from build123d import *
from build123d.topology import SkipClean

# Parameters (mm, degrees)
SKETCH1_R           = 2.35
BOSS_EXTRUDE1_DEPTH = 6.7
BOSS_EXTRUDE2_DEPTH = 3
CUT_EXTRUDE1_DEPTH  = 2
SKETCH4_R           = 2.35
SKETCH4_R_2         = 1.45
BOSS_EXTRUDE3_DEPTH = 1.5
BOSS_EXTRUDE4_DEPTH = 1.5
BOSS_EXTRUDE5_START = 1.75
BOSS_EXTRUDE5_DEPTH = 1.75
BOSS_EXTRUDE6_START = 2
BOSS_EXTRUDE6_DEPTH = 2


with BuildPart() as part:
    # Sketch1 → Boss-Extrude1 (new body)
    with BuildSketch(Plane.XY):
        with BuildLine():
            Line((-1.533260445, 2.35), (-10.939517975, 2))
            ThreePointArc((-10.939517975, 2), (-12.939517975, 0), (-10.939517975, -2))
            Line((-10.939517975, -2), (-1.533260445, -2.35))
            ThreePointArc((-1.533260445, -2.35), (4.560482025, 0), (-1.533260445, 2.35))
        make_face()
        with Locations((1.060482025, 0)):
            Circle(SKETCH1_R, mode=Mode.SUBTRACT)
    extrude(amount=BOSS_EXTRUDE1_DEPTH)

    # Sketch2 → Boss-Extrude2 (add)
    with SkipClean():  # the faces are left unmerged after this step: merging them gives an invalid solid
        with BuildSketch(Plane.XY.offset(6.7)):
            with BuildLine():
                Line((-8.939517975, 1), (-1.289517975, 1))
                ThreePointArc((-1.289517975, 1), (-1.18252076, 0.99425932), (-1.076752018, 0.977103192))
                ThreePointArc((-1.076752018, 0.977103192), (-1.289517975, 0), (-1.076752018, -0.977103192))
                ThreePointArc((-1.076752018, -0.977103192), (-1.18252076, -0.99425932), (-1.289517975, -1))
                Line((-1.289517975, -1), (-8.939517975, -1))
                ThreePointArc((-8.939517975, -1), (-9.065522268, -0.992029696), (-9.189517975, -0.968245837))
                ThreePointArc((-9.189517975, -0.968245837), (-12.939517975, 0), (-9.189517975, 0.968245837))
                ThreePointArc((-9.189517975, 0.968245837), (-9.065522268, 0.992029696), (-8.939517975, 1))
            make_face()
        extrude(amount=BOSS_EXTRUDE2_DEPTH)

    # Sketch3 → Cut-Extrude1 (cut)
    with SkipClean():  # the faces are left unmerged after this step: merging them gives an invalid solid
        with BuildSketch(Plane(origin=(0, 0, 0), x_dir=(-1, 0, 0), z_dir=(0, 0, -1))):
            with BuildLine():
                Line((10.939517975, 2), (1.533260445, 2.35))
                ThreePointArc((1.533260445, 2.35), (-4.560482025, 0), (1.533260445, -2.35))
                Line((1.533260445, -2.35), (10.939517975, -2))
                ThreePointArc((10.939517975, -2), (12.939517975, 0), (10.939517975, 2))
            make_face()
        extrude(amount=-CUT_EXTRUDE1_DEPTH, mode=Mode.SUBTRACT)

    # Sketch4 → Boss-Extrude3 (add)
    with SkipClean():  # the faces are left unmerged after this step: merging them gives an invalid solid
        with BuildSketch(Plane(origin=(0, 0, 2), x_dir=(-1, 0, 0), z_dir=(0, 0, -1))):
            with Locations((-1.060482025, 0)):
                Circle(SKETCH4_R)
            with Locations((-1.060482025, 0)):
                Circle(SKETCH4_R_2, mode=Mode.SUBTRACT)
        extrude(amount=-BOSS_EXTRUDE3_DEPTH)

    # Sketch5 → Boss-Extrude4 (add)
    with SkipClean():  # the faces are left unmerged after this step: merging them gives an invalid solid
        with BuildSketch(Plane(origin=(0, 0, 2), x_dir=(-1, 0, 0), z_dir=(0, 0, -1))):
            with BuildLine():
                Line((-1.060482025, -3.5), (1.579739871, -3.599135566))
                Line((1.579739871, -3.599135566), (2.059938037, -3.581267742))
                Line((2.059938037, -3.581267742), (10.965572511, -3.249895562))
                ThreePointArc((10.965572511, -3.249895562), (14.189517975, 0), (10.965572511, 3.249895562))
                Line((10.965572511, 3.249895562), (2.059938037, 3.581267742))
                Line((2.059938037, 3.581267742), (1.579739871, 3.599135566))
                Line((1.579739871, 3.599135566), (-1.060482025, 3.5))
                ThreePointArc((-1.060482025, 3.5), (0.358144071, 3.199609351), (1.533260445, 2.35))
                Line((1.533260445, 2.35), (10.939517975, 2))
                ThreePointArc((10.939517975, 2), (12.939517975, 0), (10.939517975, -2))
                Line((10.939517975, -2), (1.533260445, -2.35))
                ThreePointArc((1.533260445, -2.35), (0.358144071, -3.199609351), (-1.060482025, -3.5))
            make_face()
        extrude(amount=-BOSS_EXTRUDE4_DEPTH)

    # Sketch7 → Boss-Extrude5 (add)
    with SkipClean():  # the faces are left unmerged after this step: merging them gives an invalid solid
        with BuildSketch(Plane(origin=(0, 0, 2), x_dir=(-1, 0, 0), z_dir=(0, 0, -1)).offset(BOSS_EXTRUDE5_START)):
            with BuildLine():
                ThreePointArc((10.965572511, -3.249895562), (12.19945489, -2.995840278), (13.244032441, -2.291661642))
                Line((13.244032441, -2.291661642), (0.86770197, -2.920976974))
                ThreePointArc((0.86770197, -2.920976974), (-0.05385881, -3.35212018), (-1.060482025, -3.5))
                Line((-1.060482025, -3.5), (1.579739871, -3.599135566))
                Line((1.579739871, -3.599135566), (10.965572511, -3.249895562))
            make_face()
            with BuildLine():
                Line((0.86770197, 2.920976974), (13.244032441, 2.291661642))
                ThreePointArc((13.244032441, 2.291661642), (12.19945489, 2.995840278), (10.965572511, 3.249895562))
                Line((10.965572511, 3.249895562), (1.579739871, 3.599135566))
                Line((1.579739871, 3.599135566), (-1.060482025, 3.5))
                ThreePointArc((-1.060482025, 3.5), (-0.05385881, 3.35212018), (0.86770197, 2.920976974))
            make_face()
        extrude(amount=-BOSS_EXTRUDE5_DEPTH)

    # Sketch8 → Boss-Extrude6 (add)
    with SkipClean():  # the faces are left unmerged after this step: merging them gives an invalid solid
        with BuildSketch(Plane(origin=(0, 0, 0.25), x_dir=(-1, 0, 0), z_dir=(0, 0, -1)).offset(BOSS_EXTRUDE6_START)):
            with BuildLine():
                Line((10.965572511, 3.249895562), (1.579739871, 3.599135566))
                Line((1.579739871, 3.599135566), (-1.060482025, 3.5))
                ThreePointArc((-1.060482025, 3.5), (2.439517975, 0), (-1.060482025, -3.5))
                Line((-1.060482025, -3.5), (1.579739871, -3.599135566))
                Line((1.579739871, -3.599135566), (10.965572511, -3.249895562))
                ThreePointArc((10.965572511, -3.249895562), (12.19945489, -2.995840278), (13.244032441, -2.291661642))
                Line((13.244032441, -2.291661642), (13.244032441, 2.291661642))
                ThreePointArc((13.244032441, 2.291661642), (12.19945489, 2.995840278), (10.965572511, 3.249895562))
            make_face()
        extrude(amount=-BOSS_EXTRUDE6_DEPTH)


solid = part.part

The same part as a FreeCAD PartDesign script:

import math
import FreeCAD as App
import Part
import Sketcher
Q = App.Units.Quantity

doc = App.newDocument("Part")
params = doc.addObject("Spreadsheet::Sheet", "Params")
for row, (alias, value) in enumerate([
    ("sketch1_radius", "2 mm"),
    ("sketch1_diameter", "4.7 mm"),
    ("sketch1_radius2", "3.5 mm"),
    ("pad1_length", "6.7 mm"),
    ("sketch2_radius", "1 mm"),
    ("sketch2_radius2", "2 mm"),
    ("sketch2_radius3", "2.35 mm"),
    ("sketch2_width", "7.65 mm"),
    ("pad2_length", "3 mm"),
    ("sketch3_radius", "2 mm"),
    ("sketch3_radius2", "3.5 mm"),
    ("pocket1_length", "2 mm"),
    ("sketch4_diameter", "4.7 mm"),
    ("sketch4_diameter2", "2.9 mm"),
    ("pad3_length", "1.5 mm"),
    ("sketch5_radius", "2 mm"),
    ("sketch5_radius2", "3.5 mm"),
    ("sketch5_radius3", "3.25 mm"),
    ("pad4_length", "1.5 mm"),
    ("sketch6_radius", "3.5 mm"),
    ("sketch6_radius2", "3.25 mm"),
    ("pad5_length", "1.75 mm"),
    ("sketch7_radius", "3.5 mm"),
    ("sketch7_radius2", "3.25 mm"),
    ("pad6_length", "2 mm"),
], start=1):
    params.set(f"A{row}", alias)
    params.set(f"B{row}", "=" + value)
    params.setAlias(f"B{row}", alias)

body = doc.addObject("PartDesign::Body", "Body")

sketch1 = doc.addObject("Sketcher::SketchObject", "Sketch")
body.addObject(sketch1)
sketch1.AttachmentSupport = (doc.XY_Plane, [""])
sketch1.MapMode = "FlatFace"
sketch1.addGeometry([
    Part.LineSegment(App.Vector(-1.5, 2.4, 0), App.Vector(-10.9, 2, 0)),
    Part.ArcOfCircle(Part.Circle(App.Vector(-10.9, 0, 0), App.Vector(0, 0, 1), 2), math.radians(90), math.radians(270)),
    Part.LineSegment(App.Vector(-10.9, -2, 0), App.Vector(-1.5, -2.4, 0)),
    Part.ArcOfCircle(Part.Circle(App.Vector(1.1, 0, 0), App.Vector(0, 0, 1), 3.5), math.radians(-138), math.radians(138)),
    Part.Circle(App.Vector(1.1, 0, 0), App.Vector(0, 0, 1), 2.4),
], False)
sketch1.addConstraint([
    Sketcher.Constraint("Coincident", 0, 2, 1, 1),
    Sketcher.Constraint("Coincident", 1, 2, 2, 1),
    Sketcher.Constraint("Coincident", 2, 2, 3, 1),
    Sketcher.Constraint("Coincident", 3, 2, 0, 1),
    Sketcher.Constraint("Coincident", 4, 3, 3, 3),
    Sketcher.Constraint("Symmetric", 0, 2, 1, 2, -1),
    Sketcher.Constraint("Symmetric", 2, 2, 3, 2, -1),
    Sketcher.Constraint("Vertical", 1, 3, 0, 2),
    Sketcher.Constraint("Radius", 1, Q("2 mm")),
    Sketcher.Constraint("Diameter", 4, Q("4.7 mm")),
    Sketcher.Constraint("Radius", 3, Q("3.5 mm")),
    Sketcher.Constraint("DistanceX", 1, 3, 3, 3, Q("12 mm")),
    Sketcher.Constraint("DistanceY", 2, 2, 3, 2, Q("4.7 mm")),
    Sketcher.Constraint("DistanceX", 2, 2, -1, 1, Q("1.53326 mm")),
])
sketch1.setExpression("Constraints[8]", "Params.sketch1_radius")
sketch1.setExpression("Constraints[9]", "Params.sketch1_diameter")
sketch1.setExpression("Constraints[10]", "Params.sketch1_radius2")
pad1 = doc.addObject("PartDesign::Pad", "Pad")
body.addObject(pad1)
pad1.Profile = sketch1
pad1.setExpression("Length", "Params.pad1_length")

sketch2 = doc.addObject("Sketcher::SketchObject", "Sketch001")
body.addObject(sketch2)
sketch2.AttachmentSupport = (doc.XY_Plane, [""])
sketch2.MapMode = "FlatFace"
sketch2.AttachmentOffset = App.Placement(App.Vector(0, 0, 6.7), App.Rotation())
sketch2.addGeometry([
    Part.LineSegment(App.Vector(-1.29, 1, 0), App.Vector(-8.94, 1, 0)),
    Part.ArcOfCircle(Part.Circle(App.Vector(-8.94, 0, 0), App.Vector(0, 0, 1), 1), math.radians(90), math.radians(104.48)),
    Part.ArcOfCircle(Part.Circle(App.Vector(-10.94, 0, 0), App.Vector(0, 0, 1), 2), math.radians(29), math.radians(331)),
    Part.ArcOfCircle(Part.Circle(App.Vector(-8.94, 0, 0), App.Vector(0, 0, 1), 1), math.radians(-104.48), math.radians(-90)),
    Part.LineSegment(App.Vector(-8.94, -1, 0), App.Vector(-1.29, -1, 0)),
    Part.ArcOfCircle(Part.Circle(App.Vector(-1.29, 0, 0), App.Vector(0, 0, 1), 1), math.radians(-90), math.radians(-77.72)),
    Part.ArcOfCircle(Part.Circle(App.Vector(1.06, 0, 0), App.Vector(0, 0, 1), 2.35), math.radians(155), math.radians(205)),
    Part.ArcOfCircle(Part.Circle(App.Vector(-1.29, 0, 0), App.Vector(0, 0, 1), 1), math.radians(77.72), math.radians(90)),
], False)
sketch2.addConstraint([
    Sketcher.Constraint("Tangent", 0, 2, 1, 1),
    Sketcher.Constraint("Coincident", 1, 2, 2, 1),
    Sketcher.Constraint("Coincident", 2, 2, 3, 1),
    Sketcher.Constraint("Tangent", 3, 2, 4, 1),
    Sketcher.Constraint("Tangent", 4, 2, 5, 1),
    Sketcher.Constraint("Coincident", 5, 2, 6, 2),
    Sketcher.Constraint("Coincident", 6, 1, 7, 1),
    Sketcher.Constraint("Tangent", 7, 2, 0, 1),
    Sketcher.Constraint("Horizontal", 0),
    Sketcher.Constraint("Horizontal", 4),
    Sketcher.Constraint("Coincident", 3, 3, 1, 3),
    Sketcher.Constraint("Coincident", 7, 3, 5, 3),
    Sketcher.Constraint("Equal", 1, 3),
    Sketcher.Constraint("Equal", 3, 5),
    Sketcher.Constraint("Symmetric", 1, 2, 2, 2, -1),
    Sketcher.Constraint("PointOnObject", 6, 3, -1),
    Sketcher.Constraint("Radius", 1, Q("1 mm")),
    Sketcher.Constraint("Radius", 2, Q("2 mm")),
    Sketcher.Constraint("Radius", 6, Q("2.35 mm")),
    Sketcher.Constraint("DistanceX", 2, 3, 1, 3, Q("2 mm")),
    Sketcher.Constraint("DistanceX", 1, 3, 6, 3, Q("10 mm")),
    Sketcher.Constraint("DistanceX", 0, 2, 0, 1, Q("7.65 mm")),
    Sketcher.Constraint("DistanceX", 1, 3, -1, 1, Q("8.939518 mm")),
])
sketch2.setExpression("Constraints[16]", "Params.sketch2_radius")
sketch2.setExpression("Constraints[17]", "Params.sketch2_radius2")
sketch2.setExpression("Constraints[18]", "Params.sketch2_radius3")
sketch2.setExpression("Constraints[21]", "Params.sketch2_width")
pad2 = doc.addObject("PartDesign::Pad", "Pad001")
body.addObject(pad2)
pad2.Profile = sketch2
pad2.setExpression("Length", "Params.pad2_length")

sketch3 = doc.addObject("Sketcher::SketchObject", "Sketch002")
body.addObject(sketch3)
sketch3.AttachmentSupport = (doc.XY_Plane, [""])
sketch3.MapMode = "FlatFace"
sketch3.addGeometry([
    Part.LineSegment(App.Vector(-10.9, 2, 0), App.Vector(-1.5, 2.4, 0)),
    Part.ArcOfCircle(Part.Circle(App.Vector(1.1, 0, 0), App.Vector(0, 0, 1), 3.5), math.radians(-138), math.radians(138)),
    Part.LineSegment(App.Vector(-1.5, -2.4, 0), App.Vector(-10.9, -2, 0)),
    Part.ArcOfCircle(Part.Circle(App.Vector(-10.9, 0, 0), App.Vector(0, 0, 1), 2), math.radians(90), math.radians(270)),
], False)
sketch3.addConstraint([
    Sketcher.Constraint("Coincident", 0, 2, 1, 2),
    Sketcher.Constraint("Coincident", 1, 1, 2, 1),
    Sketcher.Constraint("Coincident", 2, 2, 3, 2),
    Sketcher.Constraint("Coincident", 3, 1, 0, 1),
    Sketcher.Constraint("Symmetric", 0, 2, 1, 1, -1),
    Sketcher.Constraint("Symmetric", 2, 2, 3, 1, -1),
    Sketcher.Constraint("Vertical", 3, 3, 2, 2),
    Sketcher.Constraint("Radius", 3, Q("2 mm")),
    Sketcher.Constraint("Radius", 1, Q("3.5 mm")),
    Sketcher.Constraint("DistanceX", 3, 3, 1, 3, Q("12 mm")),
    Sketcher.Constraint("DistanceY", 1, 1, 0, 2, Q("4.7 mm")),
    Sketcher.Constraint("DistanceX", 0, 2, -1, 1, Q("1.53326 mm")),
])
sketch3.setExpression("Constraints[7]", "Params.sketch3_radius")
sketch3.setExpression("Constraints[8]", "Params.sketch3_radius2")
pocket1 = doc.addObject("PartDesign::Pocket", "Pocket")
body.addObject(pocket1)
pocket1.Profile = sketch3
pocket1.setExpression("Length", "Params.pocket1_length")
pocket1.Reversed = True

sketch4 = doc.addObject("Sketcher::SketchObject", "Sketch003")
body.addObject(sketch4)
sketch4.AttachmentSupport = (doc.XY_Plane, [""])
sketch4.MapMode = "FlatFace"
sketch4.AttachmentOffset = App.Placement(App.Vector(0, 0, 2), App.Rotation())
sketch4.addGeometry([
    Part.Circle(App.Vector(1.1, 0, 0), App.Vector(0, 0, 1), 2.4),
    Part.Circle(App.Vector(1.1, 0, 0), App.Vector(0, 0, 1), 1.4),
], False)
sketch4.addConstraint([
    Sketcher.Constraint("Coincident", 1, 3, 0, 3),
    Sketcher.Constraint("PointOnObject", 0, 3, -1),
    Sketcher.Constraint("Diameter", 0, Q("4.7 mm")),
    Sketcher.Constraint("Diameter", 1, Q("2.9 mm")),
    Sketcher.Constraint("DistanceX", -1, 1, 0, 3, Q("1.060482 mm")),
])
sketch4.setExpression("Constraints[2]", "Params.sketch4_diameter")
sketch4.setExpression("Constraints[3]", "Params.sketch4_diameter2")
pad3 = doc.addObject("PartDesign::Pad", "Pad002")
body.addObject(pad3)
pad3.Profile = sketch4
pad3.setExpression("Length", "Params.pad3_length")

sketch5 = doc.addObject("Sketcher::SketchObject", "Sketch004")
body.addObject(sketch5)
sketch5.AttachmentSupport = (doc.XY_Plane, [""])
sketch5.MapMode = "FlatFace"
sketch5.AttachmentOffset = App.Placement(App.Vector(0, 0, 2), App.Rotation())
sketch5.addGeometry([
    Part.LineSegment(App.Vector(1.06, -3.5, 0), App.Vector(-1.58, -3.6, 0)),
    Part.LineSegment(App.Vector(-1.58, -3.6, 0), App.Vector(-2.06, -3.58, 0)),
    Part.LineSegment(App.Vector(-2.06, -3.58, 0), App.Vector(-10.97, -3.25, 0)),
    Part.ArcOfCircle(Part.Circle(App.Vector(-10.94, 0, 0), App.Vector(0, 0, 1), 3.25), math.radians(90), math.radians(270)),
    Part.LineSegment(App.Vector(-10.97, 3.25, 0), App.Vector(-2.06, 3.58, 0)),
    Part.LineSegment(App.Vector(-2.06, 3.58, 0), App.Vector(-1.58, 3.6, 0)),
    Part.LineSegment(App.Vector(-1.58, 3.6, 0), App.Vector(1.06, 3.5, 0)),
    Part.ArcOfCircle(Part.Circle(App.Vector(1.06, 0, 0), App.Vector(0, 0, 1), 3.5), math.radians(90), math.radians(138)),
    Part.LineSegment(App.Vector(-1.53, 2.35, 0), App.Vector(-10.94, 2, 0)),
    Part.ArcOfCircle(Part.Circle(App.Vector(-10.94, 0, 0), App.Vector(0, 0, 1), 2), math.radians(90), math.radians(270)),
    Part.LineSegment(App.Vector(-10.94, -2, 0), App.Vector(-1.53, -2.35, 0)),
    Part.ArcOfCircle(Part.Circle(App.Vector(1.06, 0, 0), App.Vector(0, 0, 1), 3.5), math.radians(-138), math.radians(-90)),
], False)
sketch5.addConstraint([
    Sketcher.Constraint("Coincident", 0, 2, 1, 1),
    Sketcher.Constraint("Coincident", 1, 2, 2, 1),
    Sketcher.Constraint("Coincident", 2, 2, 3, 2),
    Sketcher.Constraint("Coincident", 3, 1, 4, 1),
    Sketcher.Constraint("Coincident", 4, 2, 5, 1),
    Sketcher.Constraint("Coincident", 5, 2, 6, 1),
    Sketcher.Constraint("Coincident", 6, 2, 7, 1),
    Sketcher.Constraint("Coincident", 7, 2, 8, 1),
    Sketcher.Constraint("Coincident", 8, 2, 9, 1),
    Sketcher.Constraint("Coincident", 9, 2, 10, 1),
    Sketcher.Constraint("Coincident", 10, 2, 11, 1),
    Sketcher.Constraint("Coincident", 11, 2, 0, 1),
    Sketcher.Constraint("Coincident", 9, 3, 3, 3),
    Sketcher.Constraint("Coincident", 11, 3, 7, 3),
    Sketcher.Constraint("Equal", 7, 11),
    Sketcher.Constraint("Symmetric", 2, 2, 3, 1, -1),
    Sketcher.Constraint("Symmetric", 1, 2, 4, 2, -1),
    Sketcher.Constraint("Symmetric", 0, 2, 5, 2, -1),
    Sketcher.Constraint("Symmetric", 7, 2, 10, 2, -1),
    Sketcher.Constraint("Parallel", 1, 2),
    Sketcher.Constraint("Parallel", 5, 8),
    Sketcher.Constraint("Parallel", 2, 10),
    Sketcher.Constraint("Vertical", 11, 3, 6, 2),
    Sketcher.Constraint("Vertical", 9, 3, 8, 2),
    Sketcher.Constraint("Vertical", 6, 2, 11, 2),
    Sketcher.Constraint("Radius", 9, Q("2 mm")),
    Sketcher.Constraint("Radius", 7, Q("3.5 mm")),
    Sketcher.Constraint("Radius", 3, Q("3.25 mm")),
    Sketcher.Constraint("DistanceX", 3, 3, 7, 3, Q("12 mm")),
    Sketcher.Constraint("DistanceY", 10, 2, 7, 2, Q("4.7 mm")),
    Sketcher.Constraint("DistanceX", 1, 2, 0, 2, Q("0.480198 mm")),
    Sketcher.Constraint("DistanceX", 0, 2, -1, 1, Q("1.57974 mm")),
    Sketcher.Constraint("DistanceX", 7, 2, -1, 1, Q("1.53326 mm")),
    Sketcher.Constraint("DistanceY", 0, 2, 2, 2, Q("0.34924 mm")),
])
sketch5.setExpression("Constraints[25]", "Params.sketch5_radius")
sketch5.setExpression("Constraints[26]", "Params.sketch5_radius2")
sketch5.setExpression("Constraints[27]", "Params.sketch5_radius3")
pad4 = doc.addObject("PartDesign::Pad", "Pad003")
body.addObject(pad4)
pad4.Profile = sketch5
pad4.setExpression("Length", "Params.pad4_length")

sketch6 = doc.addObject("Sketcher::SketchObject", "Sketch005")
body.addObject(sketch6)
sketch6.AttachmentSupport = (doc.XY_Plane, [""])
sketch6.MapMode = "FlatFace"
sketch6.AttachmentOffset = App.Placement(App.Vector(0, 0, 0.25), App.Rotation())
sketch6.addGeometry([
    Part.ArcOfCircle(Part.Circle(App.Vector(-10.9, 0, 0), App.Vector(0, 0, 1), 3.3), math.radians(-135), math.radians(-90)),
    Part.LineSegment(App.Vector(-13.2, -2.3, 0), App.Vector(-0.9, -2.9, 0)),
    Part.ArcOfCircle(Part.Circle(App.Vector(1.1, 0, 0), App.Vector(0, 0, 1), 3.5), math.radians(-123), math.radians(-90)),
    Part.LineSegment(App.Vector(1.1, -3.5, 0), App.Vector(-1.6, -3.6, 0)),
    Part.LineSegment(App.Vector(-1.6, -3.6, 0), App.Vector(-11, -3.2, 0)),
    Part.LineSegment(App.Vector(-0.9, 2.9, 0), App.Vector(-13.2, 2.3, 0)),
    Part.ArcOfCircle(Part.Circle(App.Vector(-10.9, 0, 0), App.Vector(0, 0, 1), 3.3), math.radians(90), math.radians(135)),
    Part.LineSegment(App.Vector(-11, 3.2, 0), App.Vector(-1.6, 3.6, 0)),
    Part.LineSegment(App.Vector(-1.6, 3.6, 0), App.Vector(1.1, 3.5, 0)),
    Part.ArcOfCircle(Part.Circle(App.Vector(1.1, 0, 0), App.Vector(0, 0, 1), 3.5), math.radians(90), math.radians(123)),
], False)
sketch6.addConstraint([
    Sketcher.Constraint("Coincident", 0, 1, 1, 1),
    Sketcher.Constraint("Coincident", 1, 2, 2, 1),
    Sketcher.Constraint("Coincident", 2, 2, 3, 1),
    Sketcher.Constraint("Coincident", 3, 2, 4, 1),
    Sketcher.Constraint("Coincident", 4, 2, 0, 2),
    Sketcher.Constraint("Coincident", 5, 2, 6, 2),
    Sketcher.Constraint("Coincident", 6, 1, 7, 1),
    Sketcher.Constraint("Coincident", 7, 2, 8, 1),
    Sketcher.Constraint("Coincident", 8, 2, 9, 1),
    Sketcher.Constraint("Coincident", 9, 2, 5, 1),
    Sketcher.Constraint("Coincident", 6, 3, 0, 3),
    Sketcher.Constraint("Coincident", 9, 3, 2, 3),
    Sketcher.Constraint("Equal", 0, 6),
    Sketcher.Constraint("Equal", 2, 9),
    Sketcher.Constraint("Symmetric", 0, 1, 5, 2, -1),
    Sketcher.Constraint("Symmetric", 3, 2, 7, 2, -1),
    Sketcher.Constraint("Symmetric", 2, 2, 8, 2, -1),
    Sketcher.Constraint("Vertical", 9, 3, 2, 2),
    Sketcher.Constraint("Vertical", 4, 2, 6, 1),
    Sketcher.Constraint("Vertical", 1, 2, 9, 2),
    Sketcher.Constraint("Radius", 2, Q("3.5 mm")),
    Sketcher.Constraint("Radius", 0, Q("3.25 mm")),
    Sketcher.Constraint("DistanceX", 0, 3, 2, 3, Q("12 mm")),
    Sketcher.Constraint("DistanceX", 1, 2, -1, 1, Q("0.867702 mm")),
    Sketcher.Constraint("Distance", 1, Q("12.39232 mm")),
    Sketcher.Constraint("DistanceY", 0, 1, -1, 1, Q("2.291662 mm")),
    Sketcher.Constraint("DistanceX", 3, 2, -1, 1, Q("1.57974 mm")),
    Sketcher.Constraint("DistanceY", 3, 2, 1, 2, Q("0.678159 mm")),
    Sketcher.Constraint("DistanceX", 0, 1, 4, 2, Q("2.27846 mm")),
])
sketch6.setExpression("Constraints[20]", "Params.sketch6_radius")
sketch6.setExpression("Constraints[21]", "Params.sketch6_radius2")
pad5 = doc.addObject("PartDesign::Pad", "Pad004")
body.addObject(pad5)
pad5.Profile = sketch6
pad5.setExpression("Length", "Params.pad5_length")

sketch7 = doc.addObject("Sketcher::SketchObject", "Sketch006")
body.addObject(sketch7)
sketch7.AttachmentSupport = (doc.XY_Plane, [""])
sketch7.MapMode = "FlatFace"
sketch7.AttachmentOffset = App.Placement(App.Vector(0, 0, -1.75), App.Rotation())
sketch7.addGeometry([
    Part.LineSegment(App.Vector(-10.965573, 3.249896, 0), App.Vector(-1.57974, 3.599136, 0)),
    Part.LineSegment(App.Vector(-1.57974, 3.599136, 0), App.Vector(1.060482, 3.5, 0)),
    Part.ArcOfCircle(Part.Circle(App.Vector(1.060482, 0, 0), App.Vector(0, 0, 1), 3.5), math.radians(90), math.radians(270)),
    Part.LineSegment(App.Vector(1.060482, -3.5, 0), App.Vector(-1.57974, -3.599136, 0)),
    Part.LineSegment(App.Vector(-1.57974, -3.599136, 0), App.Vector(-10.965573, -3.249896, 0)),
    Part.ArcOfCircle(Part.Circle(App.Vector(-10.939518, 0, 0), App.Vector(0, 0, 1), 3.25), math.radians(-135.160222), math.radians(-90.459333)),
    Part.LineSegment(App.Vector(-13.244032, -2.291662, 0), App.Vector(-13.244032, 2.291662, 0)),
    Part.ArcOfCircle(Part.Circle(App.Vector(-10.939518, 0, 0), App.Vector(0, 0, 1), 3.25), math.radians(90.459333), math.radians(135.160222)),
], False)
sketch7.addConstraint([
    Sketcher.Constraint("Coincident", 0, 2, 1, 1),
    Sketcher.Constraint("Coincident", 1, 2, 2, 1),
    Sketcher.Constraint("Coincident", 2, 2, 3, 1),
    Sketcher.Constraint("Coincident", 3, 2, 4, 1),
    Sketcher.Constraint("Coincident", 4, 2, 5, 2),
    Sketcher.Constraint("Coincident", 5, 1, 6, 1),
    Sketcher.Constraint("Coincident", 6, 2, 7, 2),
    Sketcher.Constraint("Coincident", 7, 1, 0, 1),
    Sketcher.Constraint("Vertical", 6),
    Sketcher.Constraint("Coincident", 7, 3, 5, 3),
    Sketcher.Constraint("Equal", 5, 7),
    Sketcher.Constraint("Symmetric", 1, 2, 2, 2, -1),
    Sketcher.Constraint("Symmetric", 0, 2, 3, 2, -1),
    Sketcher.Constraint("Symmetric", 4, 2, 7, 1, -1),
    Sketcher.Constraint("Vertical", 2, 3, 1, 2),
    Sketcher.Constraint("Radius", 2, Q("3.5 mm")),
    Sketcher.Constraint("Radius", 5, Q("3.25 mm")),
    Sketcher.Constraint("DistanceX", 5, 3, 2, 3, Q("12 mm")),
    Sketcher.Constraint("DistanceY", 6, 1, 6, 2, Q("4.583323 mm")),
    Sketcher.Constraint("DistanceX", 0, 2, -1, 1, Q("1.57974 mm")),
    Sketcher.Constraint("DistanceX", 0, 2, 2, 3, Q("2.640222 mm")),
    Sketcher.Constraint("DistanceY", 3, 2, 0, 2, Q("7.198271 mm")),
    Sketcher.Constraint("DistanceY", 3, 2, 4, 2, Q("0.34924 mm")),
])
sketch7.setExpression("Constraints[15]", "Params.sketch7_radius")
sketch7.setExpression("Constraints[16]", "Params.sketch7_radius2")
pad6 = doc.addObject("PartDesign::Pad", "Pad005")
body.addObject(pad6)
pad6.Profile = sketch7
pad6.setExpression("Length", "Params.pad6_length")

doc.recompute()
